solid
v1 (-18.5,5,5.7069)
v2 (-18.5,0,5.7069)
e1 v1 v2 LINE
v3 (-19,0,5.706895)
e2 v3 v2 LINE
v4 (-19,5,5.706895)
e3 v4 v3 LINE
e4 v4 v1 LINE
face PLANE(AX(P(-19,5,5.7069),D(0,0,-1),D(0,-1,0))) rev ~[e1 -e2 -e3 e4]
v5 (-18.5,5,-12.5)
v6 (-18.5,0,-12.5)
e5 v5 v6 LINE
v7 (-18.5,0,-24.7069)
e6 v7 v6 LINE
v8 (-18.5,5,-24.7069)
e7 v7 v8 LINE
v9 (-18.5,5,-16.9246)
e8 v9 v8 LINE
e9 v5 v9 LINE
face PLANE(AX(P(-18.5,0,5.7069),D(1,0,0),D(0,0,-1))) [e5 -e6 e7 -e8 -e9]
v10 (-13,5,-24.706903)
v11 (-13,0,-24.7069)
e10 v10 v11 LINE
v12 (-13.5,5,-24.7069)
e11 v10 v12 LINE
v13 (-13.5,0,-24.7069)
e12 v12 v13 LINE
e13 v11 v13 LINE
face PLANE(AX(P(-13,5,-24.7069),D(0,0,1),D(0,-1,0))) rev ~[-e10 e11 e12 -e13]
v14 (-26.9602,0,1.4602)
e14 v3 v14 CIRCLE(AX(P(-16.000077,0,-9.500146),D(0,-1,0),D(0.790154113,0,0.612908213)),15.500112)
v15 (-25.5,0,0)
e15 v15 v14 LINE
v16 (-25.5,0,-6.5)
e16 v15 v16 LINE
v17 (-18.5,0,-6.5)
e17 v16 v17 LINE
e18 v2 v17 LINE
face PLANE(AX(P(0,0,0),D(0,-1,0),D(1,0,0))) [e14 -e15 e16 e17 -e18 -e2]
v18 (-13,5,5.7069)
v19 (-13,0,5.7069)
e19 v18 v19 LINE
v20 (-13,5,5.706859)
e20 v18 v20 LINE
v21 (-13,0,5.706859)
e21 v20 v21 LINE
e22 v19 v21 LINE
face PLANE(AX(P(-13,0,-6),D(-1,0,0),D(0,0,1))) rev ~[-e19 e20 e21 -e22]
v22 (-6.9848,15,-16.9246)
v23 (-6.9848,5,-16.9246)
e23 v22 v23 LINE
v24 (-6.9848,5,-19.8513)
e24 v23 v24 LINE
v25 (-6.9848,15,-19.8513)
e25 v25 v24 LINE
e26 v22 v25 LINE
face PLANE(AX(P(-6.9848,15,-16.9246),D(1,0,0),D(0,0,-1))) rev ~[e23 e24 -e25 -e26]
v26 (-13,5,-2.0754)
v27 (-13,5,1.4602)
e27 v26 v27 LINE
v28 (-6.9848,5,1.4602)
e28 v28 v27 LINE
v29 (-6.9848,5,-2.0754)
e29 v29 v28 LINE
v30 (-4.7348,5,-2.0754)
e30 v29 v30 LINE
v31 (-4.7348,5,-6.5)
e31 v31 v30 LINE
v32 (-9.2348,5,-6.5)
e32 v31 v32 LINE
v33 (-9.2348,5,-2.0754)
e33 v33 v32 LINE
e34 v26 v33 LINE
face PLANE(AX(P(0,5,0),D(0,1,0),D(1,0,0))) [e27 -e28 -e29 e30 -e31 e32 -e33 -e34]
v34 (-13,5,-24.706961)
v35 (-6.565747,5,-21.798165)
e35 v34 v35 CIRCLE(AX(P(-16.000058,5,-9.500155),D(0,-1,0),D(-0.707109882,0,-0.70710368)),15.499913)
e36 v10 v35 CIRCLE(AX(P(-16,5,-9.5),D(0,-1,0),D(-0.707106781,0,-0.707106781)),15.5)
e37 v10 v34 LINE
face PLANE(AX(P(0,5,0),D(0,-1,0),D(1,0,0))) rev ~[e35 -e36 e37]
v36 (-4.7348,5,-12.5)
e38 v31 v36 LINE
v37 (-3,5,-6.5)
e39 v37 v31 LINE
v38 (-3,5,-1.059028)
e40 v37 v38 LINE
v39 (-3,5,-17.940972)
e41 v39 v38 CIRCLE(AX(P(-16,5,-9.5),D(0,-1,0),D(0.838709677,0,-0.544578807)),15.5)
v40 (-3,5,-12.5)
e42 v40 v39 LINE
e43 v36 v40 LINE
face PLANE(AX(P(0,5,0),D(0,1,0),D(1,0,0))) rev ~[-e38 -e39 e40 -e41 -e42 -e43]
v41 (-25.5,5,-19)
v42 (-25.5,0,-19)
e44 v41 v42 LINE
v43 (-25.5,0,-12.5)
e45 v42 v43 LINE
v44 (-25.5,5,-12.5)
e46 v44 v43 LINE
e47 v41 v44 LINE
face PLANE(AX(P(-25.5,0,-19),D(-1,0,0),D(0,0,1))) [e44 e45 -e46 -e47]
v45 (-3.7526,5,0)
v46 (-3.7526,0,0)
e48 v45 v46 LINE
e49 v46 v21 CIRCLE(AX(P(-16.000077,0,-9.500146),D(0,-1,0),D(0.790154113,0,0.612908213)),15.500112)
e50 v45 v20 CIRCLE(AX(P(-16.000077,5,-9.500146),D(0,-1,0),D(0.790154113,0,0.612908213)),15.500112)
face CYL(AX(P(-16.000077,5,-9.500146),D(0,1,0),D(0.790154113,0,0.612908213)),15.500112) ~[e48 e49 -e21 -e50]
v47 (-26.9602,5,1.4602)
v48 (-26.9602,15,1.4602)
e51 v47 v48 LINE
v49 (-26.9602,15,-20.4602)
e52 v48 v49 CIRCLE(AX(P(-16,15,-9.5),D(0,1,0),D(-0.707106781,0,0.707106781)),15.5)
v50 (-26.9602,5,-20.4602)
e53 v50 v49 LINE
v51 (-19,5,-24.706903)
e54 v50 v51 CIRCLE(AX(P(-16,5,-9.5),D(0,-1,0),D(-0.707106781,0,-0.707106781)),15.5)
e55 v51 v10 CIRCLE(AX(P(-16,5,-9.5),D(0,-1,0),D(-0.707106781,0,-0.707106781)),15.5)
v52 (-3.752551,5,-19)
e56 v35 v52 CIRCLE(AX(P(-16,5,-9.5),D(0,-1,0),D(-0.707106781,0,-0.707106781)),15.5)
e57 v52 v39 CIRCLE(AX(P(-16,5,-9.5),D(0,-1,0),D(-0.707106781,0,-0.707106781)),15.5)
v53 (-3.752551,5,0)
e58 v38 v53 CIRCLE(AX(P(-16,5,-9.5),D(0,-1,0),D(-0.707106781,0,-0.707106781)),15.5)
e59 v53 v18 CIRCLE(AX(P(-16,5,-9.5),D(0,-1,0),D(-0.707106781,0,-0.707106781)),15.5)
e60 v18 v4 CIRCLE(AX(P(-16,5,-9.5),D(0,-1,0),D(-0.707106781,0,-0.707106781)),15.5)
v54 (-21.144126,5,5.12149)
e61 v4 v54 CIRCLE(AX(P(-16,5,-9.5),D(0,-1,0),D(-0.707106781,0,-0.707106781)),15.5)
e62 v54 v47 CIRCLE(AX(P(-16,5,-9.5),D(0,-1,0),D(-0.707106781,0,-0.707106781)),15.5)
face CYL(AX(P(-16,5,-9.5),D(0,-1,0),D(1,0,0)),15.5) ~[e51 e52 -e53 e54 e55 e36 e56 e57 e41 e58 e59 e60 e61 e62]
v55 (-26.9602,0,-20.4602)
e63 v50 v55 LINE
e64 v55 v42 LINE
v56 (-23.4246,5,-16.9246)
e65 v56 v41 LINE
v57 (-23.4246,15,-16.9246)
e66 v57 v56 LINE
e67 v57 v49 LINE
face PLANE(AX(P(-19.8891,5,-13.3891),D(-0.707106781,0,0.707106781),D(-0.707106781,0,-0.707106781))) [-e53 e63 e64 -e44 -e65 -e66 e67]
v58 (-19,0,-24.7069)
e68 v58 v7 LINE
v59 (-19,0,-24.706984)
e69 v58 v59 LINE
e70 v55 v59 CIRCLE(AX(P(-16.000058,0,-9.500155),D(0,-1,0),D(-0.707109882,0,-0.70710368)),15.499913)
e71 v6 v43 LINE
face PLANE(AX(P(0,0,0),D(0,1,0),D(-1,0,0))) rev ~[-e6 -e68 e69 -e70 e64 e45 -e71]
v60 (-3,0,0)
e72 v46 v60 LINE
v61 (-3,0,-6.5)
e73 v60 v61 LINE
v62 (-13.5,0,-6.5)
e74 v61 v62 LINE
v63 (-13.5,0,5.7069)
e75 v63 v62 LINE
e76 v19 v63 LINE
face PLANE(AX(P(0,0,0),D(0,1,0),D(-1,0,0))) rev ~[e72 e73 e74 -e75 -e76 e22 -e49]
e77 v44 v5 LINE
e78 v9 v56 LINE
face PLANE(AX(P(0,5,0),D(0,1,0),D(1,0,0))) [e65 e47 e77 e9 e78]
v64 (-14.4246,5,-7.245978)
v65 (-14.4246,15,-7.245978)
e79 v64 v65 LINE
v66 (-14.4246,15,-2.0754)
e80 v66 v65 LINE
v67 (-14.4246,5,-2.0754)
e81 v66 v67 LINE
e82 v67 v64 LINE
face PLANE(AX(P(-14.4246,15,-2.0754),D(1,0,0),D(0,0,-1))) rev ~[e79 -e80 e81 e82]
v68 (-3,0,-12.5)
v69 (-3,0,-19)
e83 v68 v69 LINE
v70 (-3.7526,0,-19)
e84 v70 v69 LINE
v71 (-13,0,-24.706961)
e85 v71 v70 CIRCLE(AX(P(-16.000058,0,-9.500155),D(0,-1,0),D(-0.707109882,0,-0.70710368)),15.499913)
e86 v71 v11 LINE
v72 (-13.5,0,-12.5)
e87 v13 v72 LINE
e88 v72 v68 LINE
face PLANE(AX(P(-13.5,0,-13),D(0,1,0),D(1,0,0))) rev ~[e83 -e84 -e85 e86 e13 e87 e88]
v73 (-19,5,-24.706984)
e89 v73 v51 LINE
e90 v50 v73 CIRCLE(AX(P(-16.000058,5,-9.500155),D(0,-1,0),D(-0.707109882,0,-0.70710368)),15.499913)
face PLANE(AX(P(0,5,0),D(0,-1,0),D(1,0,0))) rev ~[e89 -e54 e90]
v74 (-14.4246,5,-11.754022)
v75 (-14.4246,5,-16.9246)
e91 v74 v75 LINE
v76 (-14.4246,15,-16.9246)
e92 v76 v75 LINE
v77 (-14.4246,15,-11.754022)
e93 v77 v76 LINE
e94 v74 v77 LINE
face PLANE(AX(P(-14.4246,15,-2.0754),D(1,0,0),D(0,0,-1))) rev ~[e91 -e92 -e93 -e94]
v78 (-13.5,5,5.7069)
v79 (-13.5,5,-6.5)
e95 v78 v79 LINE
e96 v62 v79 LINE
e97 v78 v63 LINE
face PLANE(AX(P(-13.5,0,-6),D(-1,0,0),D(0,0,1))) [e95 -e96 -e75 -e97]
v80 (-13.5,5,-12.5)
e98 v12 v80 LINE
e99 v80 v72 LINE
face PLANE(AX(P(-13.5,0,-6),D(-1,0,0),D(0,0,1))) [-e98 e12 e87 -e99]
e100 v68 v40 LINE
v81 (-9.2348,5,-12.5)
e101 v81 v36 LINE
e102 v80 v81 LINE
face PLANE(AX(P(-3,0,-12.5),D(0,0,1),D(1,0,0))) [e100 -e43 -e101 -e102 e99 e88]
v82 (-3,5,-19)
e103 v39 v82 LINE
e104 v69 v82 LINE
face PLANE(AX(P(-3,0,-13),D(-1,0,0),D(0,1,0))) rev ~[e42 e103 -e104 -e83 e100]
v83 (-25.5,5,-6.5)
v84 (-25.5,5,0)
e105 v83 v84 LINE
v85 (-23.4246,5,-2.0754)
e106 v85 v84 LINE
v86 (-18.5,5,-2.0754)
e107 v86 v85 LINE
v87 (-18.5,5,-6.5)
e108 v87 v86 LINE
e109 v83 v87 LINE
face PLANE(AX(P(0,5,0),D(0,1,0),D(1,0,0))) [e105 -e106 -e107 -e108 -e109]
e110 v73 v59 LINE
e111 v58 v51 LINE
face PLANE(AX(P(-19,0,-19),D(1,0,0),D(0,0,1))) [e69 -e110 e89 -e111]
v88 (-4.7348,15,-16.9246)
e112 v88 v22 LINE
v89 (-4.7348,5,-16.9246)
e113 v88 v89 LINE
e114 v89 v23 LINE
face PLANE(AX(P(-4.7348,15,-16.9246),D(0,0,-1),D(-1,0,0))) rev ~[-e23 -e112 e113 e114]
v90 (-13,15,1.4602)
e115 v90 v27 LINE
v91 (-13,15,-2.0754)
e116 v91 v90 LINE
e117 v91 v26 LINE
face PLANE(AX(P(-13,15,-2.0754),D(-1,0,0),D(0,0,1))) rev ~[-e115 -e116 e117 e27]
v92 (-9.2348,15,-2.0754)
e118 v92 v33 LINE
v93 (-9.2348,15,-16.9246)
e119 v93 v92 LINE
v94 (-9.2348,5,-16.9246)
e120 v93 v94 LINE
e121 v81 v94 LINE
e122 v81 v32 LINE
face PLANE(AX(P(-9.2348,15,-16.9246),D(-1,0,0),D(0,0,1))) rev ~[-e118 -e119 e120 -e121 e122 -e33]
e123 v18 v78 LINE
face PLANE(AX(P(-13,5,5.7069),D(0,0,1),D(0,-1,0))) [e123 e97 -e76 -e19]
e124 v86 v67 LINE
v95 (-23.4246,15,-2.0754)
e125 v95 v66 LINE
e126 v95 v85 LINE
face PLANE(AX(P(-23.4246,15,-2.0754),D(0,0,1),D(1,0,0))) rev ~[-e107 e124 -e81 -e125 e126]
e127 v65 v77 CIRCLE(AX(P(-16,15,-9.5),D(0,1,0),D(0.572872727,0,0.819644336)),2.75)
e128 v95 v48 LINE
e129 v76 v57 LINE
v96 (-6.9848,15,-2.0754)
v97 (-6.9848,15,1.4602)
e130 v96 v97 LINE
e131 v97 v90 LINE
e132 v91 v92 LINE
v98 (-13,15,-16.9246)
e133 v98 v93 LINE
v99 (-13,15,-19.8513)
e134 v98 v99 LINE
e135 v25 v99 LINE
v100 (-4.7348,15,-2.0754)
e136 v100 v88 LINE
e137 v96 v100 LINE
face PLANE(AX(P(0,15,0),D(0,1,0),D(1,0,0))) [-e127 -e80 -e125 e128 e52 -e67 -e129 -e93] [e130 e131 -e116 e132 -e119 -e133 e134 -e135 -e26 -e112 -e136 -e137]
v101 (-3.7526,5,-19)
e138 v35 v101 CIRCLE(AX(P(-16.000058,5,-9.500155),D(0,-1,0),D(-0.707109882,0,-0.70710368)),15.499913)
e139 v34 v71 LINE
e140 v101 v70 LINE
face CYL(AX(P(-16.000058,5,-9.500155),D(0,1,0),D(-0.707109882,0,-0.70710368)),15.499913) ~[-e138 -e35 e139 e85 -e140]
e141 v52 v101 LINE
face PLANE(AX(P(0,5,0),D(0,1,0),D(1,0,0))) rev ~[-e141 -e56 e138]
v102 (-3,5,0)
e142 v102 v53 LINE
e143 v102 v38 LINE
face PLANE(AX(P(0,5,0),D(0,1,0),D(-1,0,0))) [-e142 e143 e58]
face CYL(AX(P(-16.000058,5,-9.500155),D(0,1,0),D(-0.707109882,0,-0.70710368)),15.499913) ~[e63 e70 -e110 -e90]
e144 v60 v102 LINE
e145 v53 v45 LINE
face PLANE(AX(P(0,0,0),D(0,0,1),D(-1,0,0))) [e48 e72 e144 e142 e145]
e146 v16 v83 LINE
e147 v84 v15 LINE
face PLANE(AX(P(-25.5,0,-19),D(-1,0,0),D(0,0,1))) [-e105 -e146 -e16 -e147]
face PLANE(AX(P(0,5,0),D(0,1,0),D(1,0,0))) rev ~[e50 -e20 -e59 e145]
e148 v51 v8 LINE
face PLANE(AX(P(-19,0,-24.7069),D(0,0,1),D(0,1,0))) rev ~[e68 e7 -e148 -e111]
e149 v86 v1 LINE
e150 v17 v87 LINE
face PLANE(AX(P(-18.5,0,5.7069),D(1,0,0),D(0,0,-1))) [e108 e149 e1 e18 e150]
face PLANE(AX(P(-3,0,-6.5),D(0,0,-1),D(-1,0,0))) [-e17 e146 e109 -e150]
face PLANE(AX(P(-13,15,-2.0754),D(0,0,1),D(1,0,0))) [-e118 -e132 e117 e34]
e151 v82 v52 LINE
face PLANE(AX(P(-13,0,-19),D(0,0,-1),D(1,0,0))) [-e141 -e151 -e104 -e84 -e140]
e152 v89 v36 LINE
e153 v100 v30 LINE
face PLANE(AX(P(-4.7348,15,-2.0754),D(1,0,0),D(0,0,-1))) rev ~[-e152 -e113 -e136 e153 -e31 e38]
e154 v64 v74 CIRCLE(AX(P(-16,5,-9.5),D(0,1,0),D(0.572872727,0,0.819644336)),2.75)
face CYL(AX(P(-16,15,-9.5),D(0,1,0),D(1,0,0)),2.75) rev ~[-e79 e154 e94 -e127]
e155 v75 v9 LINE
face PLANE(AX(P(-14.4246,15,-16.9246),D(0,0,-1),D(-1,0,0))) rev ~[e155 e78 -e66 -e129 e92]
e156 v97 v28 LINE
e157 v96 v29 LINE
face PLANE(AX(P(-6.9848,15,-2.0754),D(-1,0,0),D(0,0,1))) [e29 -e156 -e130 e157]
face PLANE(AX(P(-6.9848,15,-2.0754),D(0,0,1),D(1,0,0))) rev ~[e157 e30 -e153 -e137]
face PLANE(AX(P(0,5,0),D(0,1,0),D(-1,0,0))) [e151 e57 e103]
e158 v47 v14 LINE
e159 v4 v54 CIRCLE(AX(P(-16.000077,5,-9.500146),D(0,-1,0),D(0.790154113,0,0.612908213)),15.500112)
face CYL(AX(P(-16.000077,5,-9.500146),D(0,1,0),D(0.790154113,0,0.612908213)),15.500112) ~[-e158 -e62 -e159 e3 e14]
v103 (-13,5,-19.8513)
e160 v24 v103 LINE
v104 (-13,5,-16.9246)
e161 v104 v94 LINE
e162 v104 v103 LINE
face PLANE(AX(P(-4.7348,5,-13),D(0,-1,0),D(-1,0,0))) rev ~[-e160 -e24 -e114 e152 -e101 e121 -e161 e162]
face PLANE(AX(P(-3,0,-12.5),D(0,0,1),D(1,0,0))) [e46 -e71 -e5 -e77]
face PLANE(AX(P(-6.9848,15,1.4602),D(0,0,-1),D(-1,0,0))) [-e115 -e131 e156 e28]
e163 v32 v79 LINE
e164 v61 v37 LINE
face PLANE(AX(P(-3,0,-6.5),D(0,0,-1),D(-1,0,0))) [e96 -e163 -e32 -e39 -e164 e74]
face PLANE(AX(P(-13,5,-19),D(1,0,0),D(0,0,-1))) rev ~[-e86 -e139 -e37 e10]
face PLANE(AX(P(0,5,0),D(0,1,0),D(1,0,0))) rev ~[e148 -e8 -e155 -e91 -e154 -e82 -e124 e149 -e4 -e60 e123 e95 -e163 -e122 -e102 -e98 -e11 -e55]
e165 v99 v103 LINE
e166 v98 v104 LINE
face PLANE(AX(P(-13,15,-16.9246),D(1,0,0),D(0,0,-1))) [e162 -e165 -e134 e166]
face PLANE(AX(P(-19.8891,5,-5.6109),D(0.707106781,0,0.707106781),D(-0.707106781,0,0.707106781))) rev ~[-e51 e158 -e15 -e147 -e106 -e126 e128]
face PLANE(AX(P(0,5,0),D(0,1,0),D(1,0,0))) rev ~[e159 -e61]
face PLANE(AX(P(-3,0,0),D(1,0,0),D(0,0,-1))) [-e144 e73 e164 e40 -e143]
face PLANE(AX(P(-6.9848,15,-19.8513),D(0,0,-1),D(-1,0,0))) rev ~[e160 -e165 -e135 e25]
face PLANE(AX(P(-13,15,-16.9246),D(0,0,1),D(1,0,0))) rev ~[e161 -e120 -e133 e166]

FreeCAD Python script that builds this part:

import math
import FreeCAD as App
import Part
import Sketcher

V = App.Vector
Q = App.Units.Quantity

doc = App.newDocument("Part")
params = doc.addObject("Spreadsheet::Sheet", "Params")
for row, (alias, value) in enumerate([
    ("sketch1_radius", "4 mm"),
    ("sketch1_width", "32 mm"),
    ("sketch1_height", "19 mm"),
    ("pad1_length", "5 mm"),
    ("sketch2_diameter", "2 mm"),
    ("sketch2_radius", "15.5 mm"),
    ("sketch2_length", "10 mm"),
    ("pad2_length", "10 mm"),
    ("sketch3_diameter", "5.5 mm"),
    ("sketch3_diameter2", "2 mm"),
    ("pocket1_length", "10 mm"),
    ("sketch4_width", "13 mm"),
    ("sketch4_width2", "6 mm"),
    ("pocket2_length", "5 mm"),
    ("sketch5_radius", "15.5 mm"),
    ("sketch5_width", "6.5 mm"),
    ("pad3_length", "5 mm"),
    ("sketch6_width", "5 mm"),
    ("sketch6_height", "6 mm"),
    ("pocket3_length", "3 mm"),
    ("sketch7_width", "5 mm"),
    ("sketch7_height", "6 mm"),
    ("pocket4_length", "6.5 mm"),
    ("sketch8_width", "9 mm"),
    ("sketch8_width2", "2.25 mm"),
    ("pocket5_length", "10 mm"),
    ("sketch9_width", "5 mm"),
    ("pad4_length", "0.5 mm"),
    ("sketch10_width", "5 mm"),
    ("pad5_length", "0.5 mm"),
    ("sketch11_width", "7 mm"),
    ("sketch11_height", "5 mm"),
    ("sketch11_width2", "10.5 mm"),
    ("pad6_length", "0.5 mm"),
    ("sketch12_width", "7 mm"),
    ("sketch12_height", "5 mm"),
    ("sketch12_width2", "10.5 mm"),
    ("pad7_length", "0.5 mm"),
], start=1):
    params.set(f"A{row}", alias)
    params.set(f"B{row}", "=" + value)
    params.setAlias(f"B{row}", alias)

body = doc.addObject("PartDesign::Body", "Body")

# Sketch on XZ plane
sketch1 = body.newObject("Sketcher::SketchObject", "Sketch")
sketch1.AttachmentSupport = (doc.getObject("XZ_Plane"), [""])
sketch1.MapMode = "FlatFace"
sketch1.addGeometry([
    Part.LineSegment(V(0, 0, 0), V(0, -19, 0)),  # 0
    Part.LineSegment(V(0, -19, 0), V(-32, -19, 0)),  # 1
    Part.LineSegment(V(-32, -19, 0), V(-32, 0, 0)),  # 2
    Part.LineSegment(V(-32, 0, 0), V(0, 0, 0)),  # 3
    Part.ArcOfCircle(Part.Circle(V(-16, -9.5, 0), V(0, 0, 1), 4), math.radians(136.567463), math.radians(138.590378)),  # 4
    Part.LineSegment(V(-19, -6.854249, 0), V(-19, -12.145751, 0)),  # 5
    Part.ArcOfCircle(Part.Circle(V(-16, -9.5, 0), V(0, 0, 1), 4), math.radians(-138.590378), math.radians(-136.567463)),  # 6
    Part.LineSegment(V(-18.904738, -12.25, 0), V(-13.095262, -12.25, 0)),  # 7
    Part.ArcOfCircle(Part.Circle(V(-16, -9.5, 0), V(0, 0, 1), 4), math.radians(-43.432537), math.radians(-41.409622)),  # 8
    Part.LineSegment(V(-13, -12.145751, 0), V(-13, -6.854249, 0)),  # 9
    Part.ArcOfCircle(Part.Circle(V(-16, -9.5, 0), V(0, 0, 1), 4), math.radians(41.409622), math.radians(43.432537)),  # 10
    Part.LineSegment(V(-13.095262, -6.75, 0), V(-18.904738, -6.75, 0)),  # 11
], False)
sketch1.addConstraint([
    Sketcher.Constraint("Coincident", 0, 2, 1, 1),
    Sketcher.Constraint("Coincident", 1, 2, 2, 1),
    Sketcher.Constraint("Coincident", 2, 2, 3, 1),
    Sketcher.Constraint("Coincident", 3, 2, 0, 1),
    Sketcher.Constraint("Coincident", 4, 2, 5, 1),
    Sketcher.Constraint("Coincident", 5, 2, 6, 1),
    Sketcher.Constraint("Coincident", 6, 2, 7, 1),
    Sketcher.Constraint("Coincident", 7, 2, 8, 1),
    Sketcher.Constraint("Coincident", 8, 2, 9, 1),
    Sketcher.Constraint("Coincident", 9, 2, 10, 1),
    Sketcher.Constraint("Coincident", 10, 2, 11, 1),
    Sketcher.Constraint("Coincident", 11, 2, 4, 1),
    Sketcher.Constraint("Vertical", 0),
    Sketcher.Constraint("Horizontal", 1),
    Sketcher.Constraint("Vertical", 2),
    Sketcher.Constraint("Horizontal", 3),
    Sketcher.Constraint("Vertical", 5),
    Sketcher.Constraint("Horizontal", 7),
    Sketcher.Constraint("Vertical", 9),
    Sketcher.Constraint("Horizontal", 11),
    Sketcher.Constraint("Coincident", 3, 2, -1, 1),
    Sketcher.Constraint("Coincident", 6, 3, 4, 3),
    Sketcher.Constraint("Coincident", 8, 3, 4, 3),
    Sketcher.Constraint("Coincident", 10, 3, 4, 3),
    Sketcher.Constraint("Equal", 4, 6),
    Sketcher.Constraint("Equal", 6, 8),
    Sketcher.Constraint("Equal", 8, 10),
    Sketcher.Constraint("Horizontal", 5, 2, 8, 2),
    Sketcher.Constraint("Vertical", 7, 2, 10, 2),
    Sketcher.Constraint("Radius", 4, Q("4 mm")),
    Sketcher.Constraint("DistanceX", 1, 2, 1, 1, Q("32 mm")),
    Sketcher.Constraint("DistanceY", 0, 2, 0, 1, Q("19 mm")),
    Sketcher.Constraint("DistanceX", 4, 2, -1, 1, Q("19 mm")),
    Sketcher.Constraint("DistanceX", 8, 2, -1, 1, Q("13 mm")),
    Sketcher.Constraint("DistanceY", 10, 2, -1, 1, Q("6.75 mm")),
    Sketcher.Constraint("DistanceY", 4, 3, -1, 1, Q("9.5 mm")),
])
sketch1.setExpression("Constraints[29]", "Params.sketch1_radius")
sketch1.setExpression("Constraints[30]", "Params.sketch1_width")
sketch1.setExpression("Constraints[31]", "Params.sketch1_height")
pad1 = body.newObject("PartDesign::Pad", "Pad")
pad1.Profile = sketch1
pad1.setExpression("Length", "Params.pad1_length")
pad1.Reversed = True

# Sketch on XZ plane
sketch2 = body.newObject("Sketcher::SketchObject", "Sketch001")
sketch2.AttachmentSupport = (doc.getObject("XZ_Plane"), [""])
sketch2.MapMode = "FlatFace"
sketch2.AttachmentOffset = App.Placement(V(0, 0, -5), App.Rotation())
sketch2.addGeometry([
    Part.LineSegment(V(-19.8891, -5.6109, 0), V(-26.9602, 1.4602, 0)),  # 0
    Part.ArcOfCircle(Part.Circle(V(-16, -9.5, 0), V(0, 0, 1), 15.5), math.radians(-135), math.radians(135)),  # 1
    Part.LineSegment(V(-26.9602, -20.4602, 0), V(-19.8891, -13.3891, 0)),  # 2
    Part.LineSegment(V(-19.8891, -13.3891, 0), V(-19.8891, -5.6109, 0)),  # 3
    Part.Circle(V(-16, -9.5, 0), V(0, 0, 1), 1),  # 4
], False)
sketch2.addConstraint([
    Sketcher.Constraint("Coincident", 0, 2, 1, 2),
    Sketcher.Constraint("Coincident", 1, 1, 2, 1),
    Sketcher.Constraint("Coincident", 2, 2, 3, 1),
    Sketcher.Constraint("Coincident", 3, 2, 0, 1),
    Sketcher.Constraint("Vertical", 3),
    Sketcher.Constraint("Coincident", 4, 3, 1, 3),
    Sketcher.Constraint("Perpendicular", 0, 2),
    Sketcher.Constraint("Vertical", 0, 2, 1, 1),
    Sketcher.Constraint("Equal", 0, 2),
    Sketcher.Constraint("Diameter", 4, Q("2 mm")),
    Sketcher.Constraint("Radius", 1, Q("15.5 mm")),
    Sketcher.Constraint("Distance", 0, Q("10 mm")),
    Sketcher.Constraint("DistanceX", 1, 3, -1, 1, Q("16 mm")),
    Sketcher.Constraint("DistanceY", 1, 3, -1, 1, Q("9.5 mm")),
    Sketcher.Constraint("DistanceY", 3, 1, 3, 2, Q("7.7782 mm")),
])
sketch2.setExpression("Constraints[9]", "Params.sketch2_diameter")
sketch2.setExpression("Constraints[10]", "Params.sketch2_radius")
sketch2.setExpression("Constraints[11]", "Params.sketch2_length")
pad2 = body.newObject("PartDesign::Pad", "Pad001")
pad2.Profile = sketch2
pad2.setExpression("Length", "Params.pad2_length")
pad2.Reversed = True

# Sketch on XZ plane
sketch3 = body.newObject("Sketcher::SketchObject", "Sketch002")
sketch3.AttachmentSupport = (doc.getObject("XZ_Plane"), [""])
sketch3.MapMode = "FlatFace"
sketch3.AttachmentOffset = App.Placement(V(0, 0, -15), App.Rotation())
sketch3.addGeometry([
    Part.Circle(V(-16, -9.5, 0), V(0, 0, 1), 2.75),
    Part.Circle(V(-16, -9.5, 0), V(0, 0, 1), 1),
], False)
sketch3.addConstraint([
    Sketcher.Constraint("Coincident", 1, 3, 0, 3),
    Sketcher.Constraint("Diameter", 0, Q("5.5 mm")),
    Sketcher.Constraint("Diameter", 1, Q("2 mm")),
    Sketcher.Constraint("DistanceX", 0, 3, -1, 1, Q("16 mm")),
    Sketcher.Constraint("DistanceY", 0, 3, -1, 1, Q("9.5 mm")),
])
sketch3.setExpression("Constraints[1]", "Params.sketch3_diameter")
sketch3.setExpression("Constraints[2]", "Params.sketch3_diameter2")
pocket1 = body.newObject("PartDesign::Pocket", "Pocket")
pocket1.Profile = sketch3
pocket1.setExpression("Length", "Params.pocket1_length")
pocket1.Reversed = True

# Sketch on XZ plane
sketch4 = body.newObject("Sketcher::SketchObject", "Sketch003")
sketch4.AttachmentSupport = (doc.getObject("XZ_Plane"), [""])
sketch4.MapMode = "FlatFace"
sketch4.addGeometry([
    Part.LineSegment(V(-19, -6, 0), V(-32, -6, 0)),  # 0
    Part.LineSegment(V(-32, -6, 0), V(-32, -13, 0)),  # 1
    Part.LineSegment(V(-32, -13, 0), V(-19, -13, 0)),  # 2
    Part.LineSegment(V(-19, -13, 0), V(-19, -19, 0)),  # 3
    Part.LineSegment(V(-19, -19, 0), V(-13, -19, 0)),  # 4
    Part.LineSegment(V(-13, -19, 0), V(-13, -13, 0)),  # 5
    Part.LineSegment(V(-13, -13, 0), V(0, -13, 0)),  # 6
    Part.LineSegment(V(0, -13, 0), V(0, -6, 0)),  # 7
    Part.LineSegment(V(0, -6, 0), V(-13, -6, 0)),  # 8
    Part.LineSegment(V(-13, -6, 0), V(-13, 0, 0)),  # 9
    Part.LineSegment(V(-13, 0, 0), V(-19, 0, 0)),  # 10
    Part.LineSegment(V(-19, 0, 0), V(-19, -6, 0)),  # 11
], False)
sketch4.addConstraint([
    Sketcher.Constraint("Coincident", 0, 2, 1, 1),
    Sketcher.Constraint("Coincident", 1, 2, 2, 1),
    Sketcher.Constraint("Coincident", 2, 2, 3, 1),
    Sketcher.Constraint("Coincident", 3, 2, 4, 1),
    Sketcher.Constraint("Coincident", 4, 2, 5, 1),
    Sketcher.Constraint("Coincident", 5, 2, 6, 1),
    Sketcher.Constraint("Coincident", 6, 2, 7, 1),
    Sketcher.Constraint("Coincident", 7, 2, 8, 1),
    Sketcher.Constraint("Coincident", 8, 2, 9, 1),
    Sketcher.Constraint("Coincident", 9, 2, 10, 1),
    Sketcher.Constraint("Coincident", 10, 2, 11, 1),
    Sketcher.Constraint("Coincident", 11, 2, 0, 1),
    Sketcher.Constraint("Horizontal", 0),
    Sketcher.Constraint("Vertical", 1),
    Sketcher.Constraint("Horizontal", 2),
    Sketcher.Constraint("Vertical", 3),
    Sketcher.Constraint("Horizontal", 4),
    Sketcher.Constraint("Vertical", 5),
    Sketcher.Constraint("Horizontal", 6),
    Sketcher.Constraint("Vertical", 7),
    Sketcher.Constraint("Horizontal", 8),
    Sketcher.Constraint("Vertical", 9),
    Sketcher.Constraint("Horizontal", 10),
    Sketcher.Constraint("Vertical", 11),
    Sketcher.Constraint("PointOnObject", 6, 2, -2),
    Sketcher.Constraint("PointOnObject", 9, 2, -1),
    Sketcher.Constraint("Horizontal", 2, 2, 5, 2),
    Sketcher.Constraint("Horizontal", 0, 2, 7, 2),
    Sketcher.Constraint("Vertical", 5, 2, 8, 2),
    Sketcher.Constraint("Vertical", 3, 2, 10, 2),
    Sketcher.Constraint("Equal", 2, 6),
    Sketcher.Constraint("Equal", 10, 3),
    Sketcher.Constraint("Equal", 5, 9),
    Sketcher.Constraint("DistanceX", 0, 2, 0, 1, Q("13 mm")),
    Sketcher.Constraint("DistanceX", 4, 1, 4, 2, Q("6 mm")),
    Sketcher.Constraint("DistanceY", 1, 2, -1, 1, Q("13 mm")),
])
sketch4.setExpression("Constraints[33]", "Params.sketch4_width")
sketch4.setExpression("Constraints[34]", "Params.sketch4_width2")
pocket2 = body.newObject("PartDesign::Pocket", "Pocket001")
pocket2.Profile = sketch4
pocket2.setExpression("Length", "Params.pocket2_length")

# Sketch on XZ plane
sketch5 = body.newObject("Sketcher::SketchObject", "Sketch004")
sketch5.AttachmentSupport = (doc.getObject("XZ_Plane"), [""])
sketch5.MapMode = "FlatFace"
sketch5.AttachmentOffset = App.Placement(V(0, 0, -5), App.Rotation())
sketch5.addGeometry([
    Part.LineSegment(V(-13, 0, 0), V(-3.7526, 0, 0)),  # 0
    Part.ArcOfCircle(Part.Circle(V(-16, -9.5, 0), V(0, 0, 1), 15.500063), math.radians(37.799833), math.radians(78.840029)),  # 1
    Part.LineSegment(V(-13, 5.706859, 0), V(-13, 0, 0)),  # 2
    Part.LineSegment(V(-19, 0, 0), V(-19, 5.70689, 0)),  # 3
    Part.ArcOfCircle(Part.Circle(V(-16, -9.5, 0), V(0, 0, 1), 15.500063), math.radians(101.159949), math.radians(135)),  # 4
    Part.LineSegment(V(-26.9602, 1.4602, 0), V(-25.5, 0, 0)),  # 5
    Part.LineSegment(V(-25.5, 0, 0), V(-19, 0, 0)),  # 6
    Part.LineSegment(V(-25.5, -19, 0), V(-26.9602, -20.4602, 0)),  # 7
    Part.ArcOfCircle(Part.Circle(V(-16, -9.5, 0), V(0, 0, 1), 15.499962), math.radians(-135), math.radians(-101.159882)),  # 8
    Part.LineSegment(V(-19, -24.706984, 0), V(-19, -19, 0)),  # 9
    Part.LineSegment(V(-19, -19, 0), V(-25.5, -19, 0)),  # 10
    Part.LineSegment(V(-13, -19, 0), V(-13, -24.706961, 0)),  # 11
    Part.ArcOfCircle(Part.Circle(V(-16, -9.5, 0), V(0, 0, 1), 15.499962), math.radians(-78.840102), math.radians(-37.799833)),  # 12
    Part.LineSegment(V(-3.7526, -19, 0), V(-13, -19, 0)),  # 13
], False)
sketch5.addConstraint([
    Sketcher.Constraint("Coincident", 0, 2, 1, 1),
    Sketcher.Constraint("Coincident", 1, 2, 2, 1),
    Sketcher.Constraint("Coincident", 2, 2, 0, 1),
    Sketcher.Constraint("Coincident", 3, 2, 4, 1),
    Sketcher.Constraint("Coincident", 4, 2, 5, 1),
    Sketcher.Constraint("Coincident", 5, 2, 6, 1),
    Sketcher.Constraint("Coincident", 6, 2, 3, 1),
    Sketcher.Constraint("Coincident", 7, 2, 8, 1),
    Sketcher.Constraint("Coincident", 8, 2, 9, 1),
    Sketcher.Constraint("Coincident", 9, 2, 10, 1),
    Sketcher.Constraint("Coincident", 10, 2, 7, 1),
    Sketcher.Constraint("Coincident", 11, 2, 12, 1),
    Sketcher.Constraint("Coincident", 12, 2, 13, 1),
    Sketcher.Constraint("Coincident", 13, 2, 11, 1),
    Sketcher.Constraint("Horizontal", 0),
    Sketcher.Constraint("Vertical", 2),
    Sketcher.Constraint("Vertical", 3),
    Sketcher.Constraint("Horizontal", 6),
    Sketcher.Constraint("Vertical", 9),
    Sketcher.Constraint("Horizontal", 10),
    Sketcher.Constraint("Vertical", 11),
    Sketcher.Constraint("Horizontal", 13),
    Sketcher.Constraint("Coincident", 4, 3, 1, 3),
    Sketcher.Constraint("Coincident", 8, 3, 1, 3),
    Sketcher.Constraint("Coincident", 12, 3, 1, 3),
    Sketcher.Constraint("Equal", 1, 4),
    Sketcher.Constraint("Equal", 4, 8),
    Sketcher.Constraint("Equal", 8, 12),
    Sketcher.Constraint("PointOnObject", 0, 2, -1),
    Sketcher.Constraint("PointOnObject", 5, 2, -1),
    Sketcher.Constraint("Perpendicular", 5, 7),
    Sketcher.Constraint("Horizontal", 1, 2, 3, 2),
    Sketcher.Constraint("Horizontal", 8, 2, 11, 2),
    Sketcher.Constraint("Horizontal", 10, 2, 12, 2),
    Sketcher.Constraint("Vertical", 4, 2, 7, 2),
    Sketcher.Constraint("Vertical", 6, 2, 8, 2),
    Sketcher.Constraint("Vertical", 5, 2, 10, 2),
    Sketcher.Constraint("Vertical", 0, 2, 12, 2),
    Sketcher.Constraint("Radius", 1, Q("15.5 mm")),
    Sketcher.Constraint("DistanceX", 6, 1, 6, 2, Q("6.5 mm")),
    Sketcher.Constraint("DistanceX", 1, 3, -1, 1, Q("16 mm")),
    Sketcher.Constraint("DistanceX", 1, 2, -1, 1, Q("13 mm")),
    Sketcher.Constraint("DistanceY", 9, 2, -1, 1, Q("19 mm")),
])
sketch5.setExpression("Constraints[38]", "Params.sketch5_radius")
sketch5.setExpression("Constraints[39]", "Params.sketch5_width")
pad3 = body.newObject("PartDesign::Pad", "Pad002")
pad3.Profile = sketch5
pad3.setExpression("Length", "Params.pad3_length")

# Sketch on YZ plane
sketch6 = body.newObject("Sketcher::SketchObject", "Sketch005")
sketch6.AttachmentSupport = (doc.getObject("YZ_Plane"), [""])
sketch6.MapMode = "FlatFace"
sketch6.addGeometry([
    Part.LineSegment(V(5, -6, 0), V(5, 0, 0)),  # 0
    Part.LineSegment(V(5, 0, 0), V(0, 0, 0)),  # 1
    Part.LineSegment(V(0, 0, 0), V(0, -6, 0)),  # 2
    Part.LineSegment(V(0, -6, 0), V(5, -6, 0)),  # 3
    Part.LineSegment(V(5, -19, 0), V(5, -13, 0)),  # 4
    Part.LineSegment(V(5, -13, 0), V(0, -13, 0)),  # 5
    Part.LineSegment(V(0, -13, 0), V(0, -19, 0)),  # 6
    Part.LineSegment(V(0, -19, 0), V(5, -19, 0)),  # 7
], False)
sketch6.addConstraint([
    Sketcher.Constraint("Coincident", 0, 2, 1, 1),
    Sketcher.Constraint("Coincident", 1, 2, 2, 1),
    Sketcher.Constraint("Coincident", 2, 2, 3, 1),
    Sketcher.Constraint("Coincident", 3, 2, 0, 1),
    Sketcher.Constraint("Coincident", 4, 2, 5, 1),
    Sketcher.Constraint("Coincident", 5, 2, 6, 1),
    Sketcher.Constraint("Coincident", 6, 2, 7, 1),
    Sketcher.Constraint("Coincident", 7, 2, 4, 1),
    Sketcher.Constraint("Vertical", 0),
    Sketcher.Constraint("Horizontal", 1),
    Sketcher.Constraint("Vertical", 2),
    Sketcher.Constraint("Horizontal", 3),
    Sketcher.Constraint("Vertical", 4),
    Sketcher.Constraint("Horizontal", 5),
    Sketcher.Constraint("Vertical", 6),
    Sketcher.Constraint("Horizontal", 7),
    Sketcher.Constraint("Coincident", 1, 2, -1, 1),
    Sketcher.Constraint("PointOnObject", 5, 2, -2),
    Sketcher.Constraint("Vertical", 3, 2, 4, 2),
    Sketcher.Constraint("Equal", 2, 4),
    Sketcher.Constraint("DistanceX", 1, 2, 1, 1, Q("5 mm")),
    Sketcher.Constraint("DistanceY", 0, 1, 0, 2, Q("6 mm")),
    Sketcher.Constraint("DistanceY", 4, 2, -1, 1, Q("13 mm")),
])
sketch6.setExpression("Constraints[20]", "Params.sketch6_width")
sketch6.setExpression("Constraints[21]", "Params.sketch6_height")
pocket3 = body.newObject("PartDesign::Pocket", "Pocket002")
pocket3.Profile = sketch6
pocket3.setExpression("Length", "Params.pocket3_length")

# Sketch on YZ plane
sketch7 = body.newObject("Sketcher::SketchObject", "Sketch006")
sketch7.AttachmentSupport = (doc.getObject("YZ_Plane"), [""])
sketch7.MapMode = "FlatFace"
sketch7.AttachmentOffset = App.Placement(V(0, 0, -32), App.Rotation())
sketch7.addGeometry([
    Part.LineSegment(V(5, -13, 0), V(5, -19, 0)),  # 0
    Part.LineSegment(V(5, -19, 0), V(0, -19, 0)),  # 1
    Part.LineSegment(V(0, -19, 0), V(0, -13, 0)),  # 2
    Part.LineSegment(V(0, -13, 0), V(5, -13, 0)),  # 3
    Part.LineSegment(V(5, -6, 0), V(0, -6, 0)),  # 4
    Part.LineSegment(V(0, -6, 0), V(0, 0, 0)),  # 5
    Part.LineSegment(V(0, 0, 0), V(5, 0, 0)),  # 6
    Part.LineSegment(V(5, 0, 0), V(5, -6, 0)),  # 7
], False)
sketch7.addConstraint([
    Sketcher.Constraint("Coincident", 0, 2, 1, 1),
    Sketcher.Constraint("Coincident", 1, 2, 2, 1),
    Sketcher.Constraint("Coincident", 2, 2, 3, 1),
    Sketcher.Constraint("Coincident", 3, 2, 0, 1),
    Sketcher.Constraint("Coincident", 4, 2, 5, 1),
    Sketcher.Constraint("Coincident", 5, 2, 6, 1),
    Sketcher.Constraint("Coincident", 6, 2, 7, 1),
    Sketcher.Constraint("Coincident", 7, 2, 4, 1),
    Sketcher.Constraint("Vertical", 0),
    Sketcher.Constraint("Horizontal", 1),
    Sketcher.Constraint("Vertical", 2),
    Sketcher.Constraint("Horizontal", 3),
    Sketcher.Constraint("Horizontal", 4),
    Sketcher.Constraint("Vertical", 5),
    Sketcher.Constraint("Horizontal", 6),
    Sketcher.Constraint("Vertical", 7),
    Sketcher.Constraint("Coincident", 5, 2, -1, 1),
    Sketcher.Constraint("PointOnObject", 1, 2, -2),
    Sketcher.Constraint("Vertical", 3, 2, 6, 2),
    Sketcher.Constraint("Equal", 2, 5),
    Sketcher.Constraint("DistanceX", 1, 2, 1, 1, Q("5 mm")),
    Sketcher.Constraint("DistanceY", 0, 2, 0, 1, Q("6 mm")),
    Sketcher.Constraint("DistanceY", 0, 2, -1, 1, Q("19 mm")),
])
sketch7.setExpression("Constraints[20]", "Params.sketch7_width")
sketch7.setExpression("Constraints[21]", "Params.sketch7_height")
pocket4 = body.newObject("PartDesign::Pocket", "Pocket003")
pocket4.Profile = sketch7
pocket4.setExpression("Length", "Params.pocket4_length")
pocket4.Reversed = True

# Sketch on XZ plane
sketch8 = body.newObject("Sketcher::SketchObject", "Sketch007")
sketch8.AttachmentSupport = (doc.getObject("XZ_Plane"), [""])
sketch8.MapMode = "FlatFace"
sketch8.AttachmentOffset = App.Placement(V(0, 0, -15), App.Rotation())
sketch8.addGeometry([
    Part.LineSegment(V(-23.4246, -16.9246, 0), V(-23.4246, -2.0754, 0)),  # 0
    Part.LineSegment(V(-23.4246, -2.0754, 0), V(-14.4246, -2.0754, 0)),  # 1
    Part.LineSegment(V(-14.4246, -2.0754, 0), V(-14.4246, -16.9246, 0)),  # 2
    Part.LineSegment(V(-14.4246, -16.9246, 0), V(-23.4246, -16.9246, 0)),  # 3
    Part.LineSegment(V(-9.2348, -16.9246, 0), V(-9.2348, -2.0754, 0)),  # 4
    Part.LineSegment(V(-9.2348, -2.0754, 0), V(-13, -2.0754, 0)),  # 5
    Part.LineSegment(V(-13, -2.0754, 0), V(-13, 1.4602, 0)),  # 6
    Part.LineSegment(V(-13, 1.4602, 0), V(-6.9848, 1.4602, 0)),  # 7
    Part.LineSegment(V(-6.9848, 1.4602, 0), V(-6.9848, -2.0754, 0)),  # 8
    Part.LineSegment(V(-6.9848, -2.0754, 0), V(-4.7348, -2.0754, 0)),  # 9
    Part.LineSegment(V(-4.7348, -2.0754, 0), V(-4.7348, -16.9246, 0)),  # 10
    Part.LineSegment(V(-4.7348, -16.9246, 0), V(-6.9848, -16.9246, 0)),  # 11
    Part.LineSegment(V(-6.9848, -16.9246, 0), V(-6.9848, -19.8513, 0)),  # 12
    Part.LineSegment(V(-6.9848, -19.8513, 0), V(-13, -19.8513, 0)),  # 13
    Part.LineSegment(V(-13, -19.8513, 0), V(-13, -16.9246, 0)),  # 14
    Part.LineSegment(V(-13, -16.9246, 0), V(-9.2348, -16.9246, 0)),  # 15
], False)
sketch8.addConstraint([
    Sketcher.Constraint("Coincident", 0, 2, 1, 1),
    Sketcher.Constraint("Coincident", 1, 2, 2, 1),
    Sketcher.Constraint("Coincident", 2, 2, 3, 1),
    Sketcher.Constraint("Coincident", 3, 2, 0, 1),
    Sketcher.Constraint("Coincident", 4, 2, 5, 1),
    Sketcher.Constraint("Coincident", 5, 2, 6, 1),
    Sketcher.Constraint("Coincident", 6, 2, 7, 1),
    Sketcher.Constraint("Coincident", 7, 2, 8, 1),
    Sketcher.Constraint("Coincident", 8, 2, 9, 1),
    Sketcher.Constraint("Coincident", 9, 2, 10, 1),
    Sketcher.Constraint("Coincident", 10, 2, 11, 1),
    Sketcher.Constraint("Coincident", 11, 2, 12, 1),
    Sketcher.Constraint("Coincident", 12, 2, 13, 1),
    Sketcher.Constraint("Coincident", 13, 2, 14, 1),
    Sketcher.Constraint("Coincident", 14, 2, 15, 1),
    Sketcher.Constraint("Coincident", 15, 2, 4, 1),
    Sketcher.Constraint("Vertical", 0),
    Sketcher.Constraint("Horizontal", 1),
    Sketcher.Constraint("Vertical", 2),
    Sketcher.Constraint("Horizontal", 3),
    Sketcher.Constraint("Vertical", 4),
    Sketcher.Constraint("Horizontal", 5),
    Sketcher.Constraint("Vertical", 6),
    Sketcher.Constraint("Horizontal", 7),
    Sketcher.Constraint("Vertical", 8),
    Sketcher.Constraint("Horizontal", 9),
    Sketcher.Constraint("Vertical", 10),
    Sketcher.Constraint("Horizontal", 11),
    Sketcher.Constraint("Vertical", 12),
    Sketcher.Constraint("Horizontal", 13),
    Sketcher.Constraint("Vertical", 14),
    Sketcher.Constraint("Horizontal", 15),
    Sketcher.Constraint("Horizontal", 1, 2, 4, 2),
    Sketcher.Constraint("Horizontal", 5, 2, 8, 2),
    Sketcher.Constraint("Horizontal", 3, 2, 10, 2),
    Sketcher.Constraint("Horizontal", 11, 2, 14, 2),
    Sketcher.Constraint("Vertical", 8, 2, 11, 2),
    Sketcher.Constraint("Vertical", 6, 2, 13, 2),
    Sketcher.Constraint("DistanceX", 1, 1, 1, 2, Q("9 mm")),
    Sketcher.Constraint("DistanceX", 4, 2, 9, 2, Q("4.5 mm")),
    Sketcher.Constraint("DistanceX", 5, 2, -1, 1, Q("13 mm")),
    Sketcher.Constraint("DistanceX", 9, 1, 9, 2, Q("2.25 mm")),
    Sketcher.Constraint("DistanceX", 5, 2, 5, 1, Q("3.7652 mm")),
    Sketcher.Constraint("DistanceY", 0, 1, 0, 2, Q("14.8492 mm")),
    Sketcher.Constraint("DistanceY", 6, 1, 6, 2, Q("3.5356 mm")),
    Sketcher.Constraint("DistanceY", 12, 2, 12, 1, Q("2.9267 mm")),
    Sketcher.Constraint("DistanceX", 0, 2, -1, 1, Q("23.4246 mm")),
    Sketcher.Constraint("DistanceY", 0, 2, -1, 1, Q("2.0754 mm")),
])
sketch8.setExpression("Constraints[38]", "Params.sketch8_width")
sketch8.setExpression("Constraints[41]", "Params.sketch8_width2")
pocket5 = body.newObject("PartDesign::Pocket", "Pocket004")
pocket5.Profile = sketch8
pocket5.setExpression("Length", "Params.pocket5_length")
pocket5.Reversed = True

# Sketch on YZ plane
sketch9 = body.newObject("Sketcher::SketchObject", "Sketch008")
sketch9.AttachmentSupport = (doc.getObject("YZ_Plane"), [""])
sketch9.MapMode = "FlatFace"
sketch9.AttachmentOffset = App.Placement(V(0, 0, -13), App.Rotation())
sketch9.addGeometry([
    Part.LineSegment(V(0, 5.7069, 0), V(5, 5.7069, 0)),  # 0
    Part.LineSegment(V(5, 5.7069, 0), V(5, -6, 0)),  # 1
    Part.LineSegment(V(5, -6, 0), V(0, -6, 0)),  # 2
    Part.LineSegment(V(0, -6, 0), V(0, 5.7069, 0)),  # 3
    Part.LineSegment(V(0, -24.7069, 0), V(0, -13, 0)),  # 4
    Part.LineSegment(V(0, -13, 0), V(5, -13, 0)),  # 5
    Part.LineSegment(V(5, -13, 0), V(5, -24.7069, 0)),  # 6
    Part.LineSegment(V(5, -24.7069, 0), V(0, -24.7069, 0)),  # 7
], False)
sketch9.addConstraint([
    Sketcher.Constraint("Coincident", 0, 2, 1, 1),
    Sketcher.Constraint("Coincident", 1, 2, 2, 1),
    Sketcher.Constraint("Coincident", 2, 2, 3, 1),
    Sketcher.Constraint("Coincident", 3, 2, 0, 1),
    Sketcher.Constraint("Coincident", 4, 2, 5, 1),
    Sketcher.Constraint("Coincident", 5, 2, 6, 1),
    Sketcher.Constraint("Coincident", 6, 2, 7, 1),
    Sketcher.Constraint("Coincident", 7, 2, 4, 1),
    Sketcher.Constraint("Horizontal", 0),
    Sketcher.Constraint("Vertical", 1),
    Sketcher.Constraint("Horizontal", 2),
    Sketcher.Constraint("Vertical", 3),
    Sketcher.Constraint("Vertical", 4),
    Sketcher.Constraint("Horizontal", 5),
    Sketcher.Constraint("Vertical", 6),
    Sketcher.Constraint("Horizontal", 7),
    Sketcher.Constraint("PointOnObject", 2, 2, -2),
    Sketcher.Constraint("PointOnObject", 4, 2, -2),
    Sketcher.Constraint("Vertical", 1, 2, 5, 2),
    Sketcher.Constraint("Equal", 3, 4),
    Sketcher.Constraint("DistanceX", 0, 1, 0, 2, Q("5 mm")),
    Sketcher.Constraint("DistanceY", 1, 2, -1, 1, Q("6 mm")),
    Sketcher.Constraint("DistanceY", 4, 2, -1, 1, Q("13 mm")),
    Sketcher.Constraint("DistanceY", 1, 2, 1, 1, Q("11.707 mm")),
])
sketch9.setExpression("Constraints[20]", "Params.sketch9_width")
pad4 = body.newObject("PartDesign::Pad", "Pad003")
pad4.Profile = sketch9
pad4.setExpression("Length", "Params.pad4_length")
pad4.Reversed = True

# Sketch on YZ plane
sketch10 = body.newObject("Sketcher::SketchObject", "Sketch009")
sketch10.AttachmentSupport = (doc.getObject("YZ_Plane"), [""])
sketch10.MapMode = "FlatFace"
sketch10.AttachmentOffset = App.Placement(V(0, 0, -19), App.Rotation())
sketch10.addGeometry([
    Part.LineSegment(V(0, 5.7069, 0), V(0, -6, 0)),  # 0
    Part.LineSegment(V(0, -6, 0), V(5, -6, 0)),  # 1
    Part.LineSegment(V(5, -6, 0), V(5, 5.7069, 0)),  # 2
    Part.LineSegment(V(5, 5.7069, 0), V(0, 5.7069, 0)),  # 3
    Part.LineSegment(V(5, -13, 0), V(0, -13, 0)),  # 4
    Part.LineSegment(V(0, -13, 0), V(0, -24.7069, 0)),  # 5
    Part.LineSegment(V(0, -24.7069, 0), V(5, -24.7069, 0)),  # 6
    Part.LineSegment(V(5, -24.7069, 0), V(5, -13, 0)),  # 7
], False)
sketch10.addConstraint([
    Sketcher.Constraint("Coincident", 0, 2, 1, 1),
    Sketcher.Constraint("Coincident", 1, 2, 2, 1),
    Sketcher.Constraint("Coincident", 2, 2, 3, 1),
    Sketcher.Constraint("Coincident", 3, 2, 0, 1),
    Sketcher.Constraint("Coincident", 4, 2, 5, 1),
    Sketcher.Constraint("Coincident", 5, 2, 6, 1),
    Sketcher.Constraint("Coincident", 6, 2, 7, 1),
    Sketcher.Constraint("Coincident", 7, 2, 4, 1),
    Sketcher.Constraint("Vertical", 0),
    Sketcher.Constraint("Horizontal", 1),
    Sketcher.Constraint("Vertical", 2),
    Sketcher.Constraint("Horizontal", 3),
    Sketcher.Constraint("Horizontal", 4),
    Sketcher.Constraint("Vertical", 5),
    Sketcher.Constraint("Horizontal", 6),
    Sketcher.Constraint("Vertical", 7),
    Sketcher.Constraint("PointOnObject", 0, 2, -2),
    Sketcher.Constraint("PointOnObject", 4, 2, -2),
    Sketcher.Constraint("Vertical", 2, 2, 6, 2),
    Sketcher.Constraint("Equal", 2, 5),
    Sketcher.Constraint("DistanceX", 1, 1, 1, 2, Q("5 mm")),
    Sketcher.Constraint("DistanceY", 0, 2, -1, 1, Q("6 mm")),
    Sketcher.Constraint("DistanceY", 4, 2, -1, 1, Q("13 mm")),
    Sketcher.Constraint("DistanceY", 0, 2, 0, 1, Q("11.707 mm")),
])
sketch10.setExpression("Constraints[20]", "Params.sketch10_width")
pad5 = body.newObject("PartDesign::Pad", "Pad004")
pad5.Profile = sketch10
pad5.setExpression("Length", "Params.pad5_length")

# Sketch on XY plane
sketch11 = body.newObject("Sketcher::SketchObject", "Sketch010")
sketch11.AttachmentSupport = (doc.getObject("XY_Plane"), [""])
sketch11.MapMode = "FlatFace"
sketch11.AttachmentOffset = App.Placement(V(0, 0, -6), App.Rotation())
sketch11.addGeometry([
    Part.LineSegment(V(-3, 5, 0), V(-3, 0, 0)),  # 0
    Part.LineSegment(V(-3, 0, 0), V(-13.5, 0, 0)),  # 1
    Part.LineSegment(V(-13.5, 0, 0), V(-13.5, 5, 0)),  # 2
    Part.LineSegment(V(-13.5, 5, 0), V(-3, 5, 0)),  # 3
    Part.LineSegment(V(-25.5, 0, 0), V(-25.5, 5, 0)),  # 4
    Part.LineSegment(V(-25.5, 5, 0), V(-18.5, 5, 0)),  # 5
    Part.LineSegment(V(-18.5, 5, 0), V(-18.5, 0, 0)),  # 6
    Part.LineSegment(V(-18.5, 0, 0), V(-25.5, 0, 0)),  # 7
], False)
sketch11.addConstraint([
    Sketcher.Constraint("Coincident", 0, 2, 1, 1),
    Sketcher.Constraint("Coincident", 1, 2, 2, 1),
    Sketcher.Constraint("Coincident", 2, 2, 3, 1),
    Sketcher.Constraint("Coincident", 3, 2, 0, 1),
    Sketcher.Constraint("Coincident", 4, 2, 5, 1),
    Sketcher.Constraint("Coincident", 5, 2, 6, 1),
    Sketcher.Constraint("Coincident", 6, 2, 7, 1),
    Sketcher.Constraint("Coincident", 7, 2, 4, 1),
    Sketcher.Constraint("Vertical", 0),
    Sketcher.Constraint("Horizontal", 1),
    Sketcher.Constraint("Vertical", 2),
    Sketcher.Constraint("Horizontal", 3),
    Sketcher.Constraint("Vertical", 4),
    Sketcher.Constraint("Horizontal", 5),
    Sketcher.Constraint("Vertical", 6),
    Sketcher.Constraint("Horizontal", 7),
    Sketcher.Constraint("PointOnObject", 0, 2, -1),
    Sketcher.Constraint("PointOnObject", 6, 2, -1),
    Sketcher.Constraint("Horizontal", 3, 2, 4, 2),
    Sketcher.Constraint("DistanceX", 5, 1, 5, 2, Q("7 mm")),
    Sketcher.Constraint("DistanceY", 0, 2, 0, 1, Q("5 mm")),
    Sketcher.Constraint("DistanceX", 1, 2, 1, 1, Q("10.5 mm")),
    Sketcher.Constraint("DistanceX", 0, 2, -1, 1, Q("3 mm")),
    Sketcher.Constraint("DistanceX", 4, 2, 2, 2, Q("12 mm")),
])
sketch11.setExpression("Constraints[19]", "Params.sketch11_width")
sketch11.setExpression("Constraints[20]", "Params.sketch11_height")
sketch11.setExpression("Constraints[21]", "Params.sketch11_width2")
pad6 = body.newObject("PartDesign::Pad", "Pad005")
pad6.Profile = sketch11
pad6.setExpression("Length", "Params.pad6_length")
pad6.Reversed = True

# Sketch on XY plane
sketch12 = body.newObject("Sketcher::SketchObject", "Sketch011")
sketch12.AttachmentSupport = (doc.getObject("XY_Plane"), [""])
sketch12.MapMode = "FlatFace"
sketch12.AttachmentOffset = App.Placement(V(0, 0, -13), App.Rotation())
sketch12.addGeometry([
    Part.LineSegment(V(-3, 0, 0), V(-3, 5, 0)),  # 0
    Part.LineSegment(V(-3, 5, 0), V(-13.5, 5, 0)),  # 1
    Part.LineSegment(V(-13.5, 5, 0), V(-13.5, 0, 0)),  # 2
    Part.LineSegment(V(-13.5, 0, 0), V(-3, 0, 0)),  # 3
    Part.LineSegment(V(-25.5, 0, 0), V(-18.5, 0, 0)),  # 4
    Part.LineSegment(V(-18.5, 0, 0), V(-18.5, 5, 0)),  # 5
    Part.LineSegment(V(-18.5, 5, 0), V(-25.5, 5, 0)),  # 6
    Part.LineSegment(V(-25.5, 5, 0), V(-25.5, 0, 0)),  # 7
], False)
sketch12.addConstraint([
    Sketcher.Constraint("Coincident", 0, 2, 1, 1),
    Sketcher.Constraint("Coincident", 1, 2, 2, 1),
    Sketcher.Constraint("Coincident", 2, 2, 3, 1),
    Sketcher.Constraint("Coincident", 3, 2, 0, 1),
    Sketcher.Constraint("Coincident", 4, 2, 5, 1),
    Sketcher.Constraint("Coincident", 5, 2, 6, 1),
    Sketcher.Constraint("Coincident", 6, 2, 7, 1),
    Sketcher.Constraint("Coincident", 7, 2, 4, 1),
    Sketcher.Constraint("Vertical", 0),
    Sketcher.Constraint("Horizontal", 1),
    Sketcher.Constraint("Vertical", 2),
    Sketcher.Constraint("Horizontal", 3),
    Sketcher.Constraint("Horizontal", 4),
    Sketcher.Constraint("Vertical", 5),
    Sketcher.Constraint("Horizontal", 6),
    Sketcher.Constraint("Vertical", 7),
    Sketcher.Constraint("PointOnObject", 2, 2, -1),
    Sketcher.Constraint("PointOnObject", 4, 2, -1),
    Sketcher.Constraint("Horizontal", 1, 2, 5, 2),
    Sketcher.Constraint("DistanceX", 4, 1, 4, 2, Q("7 mm")),
    Sketcher.Constraint("DistanceY", 0, 1, 0, 2, Q("5 mm")),
    Sketcher.Constraint("DistanceX", 1, 2, 1, 1, Q("10.5 mm")),
    Sketcher.Constraint("DistanceX", 0, 2, -1, 1, Q("3 mm")),
    Sketcher.Constraint("DistanceX", 4, 2, 2, 2, Q("5 mm")),
])
sketch12.setExpression("Constraints[19]", "Params.sketch12_width")
sketch12.setExpression("Constraints[20]", "Params.sketch12_height")
sketch12.setExpression("Constraints[21]", "Params.sketch12_width2")
pad7 = body.newObject("PartDesign::Pad", "Pad006")
pad7.Profile = sketch12
pad7.setExpression("Length", "Params.pad7_length")

doc.recompute()
